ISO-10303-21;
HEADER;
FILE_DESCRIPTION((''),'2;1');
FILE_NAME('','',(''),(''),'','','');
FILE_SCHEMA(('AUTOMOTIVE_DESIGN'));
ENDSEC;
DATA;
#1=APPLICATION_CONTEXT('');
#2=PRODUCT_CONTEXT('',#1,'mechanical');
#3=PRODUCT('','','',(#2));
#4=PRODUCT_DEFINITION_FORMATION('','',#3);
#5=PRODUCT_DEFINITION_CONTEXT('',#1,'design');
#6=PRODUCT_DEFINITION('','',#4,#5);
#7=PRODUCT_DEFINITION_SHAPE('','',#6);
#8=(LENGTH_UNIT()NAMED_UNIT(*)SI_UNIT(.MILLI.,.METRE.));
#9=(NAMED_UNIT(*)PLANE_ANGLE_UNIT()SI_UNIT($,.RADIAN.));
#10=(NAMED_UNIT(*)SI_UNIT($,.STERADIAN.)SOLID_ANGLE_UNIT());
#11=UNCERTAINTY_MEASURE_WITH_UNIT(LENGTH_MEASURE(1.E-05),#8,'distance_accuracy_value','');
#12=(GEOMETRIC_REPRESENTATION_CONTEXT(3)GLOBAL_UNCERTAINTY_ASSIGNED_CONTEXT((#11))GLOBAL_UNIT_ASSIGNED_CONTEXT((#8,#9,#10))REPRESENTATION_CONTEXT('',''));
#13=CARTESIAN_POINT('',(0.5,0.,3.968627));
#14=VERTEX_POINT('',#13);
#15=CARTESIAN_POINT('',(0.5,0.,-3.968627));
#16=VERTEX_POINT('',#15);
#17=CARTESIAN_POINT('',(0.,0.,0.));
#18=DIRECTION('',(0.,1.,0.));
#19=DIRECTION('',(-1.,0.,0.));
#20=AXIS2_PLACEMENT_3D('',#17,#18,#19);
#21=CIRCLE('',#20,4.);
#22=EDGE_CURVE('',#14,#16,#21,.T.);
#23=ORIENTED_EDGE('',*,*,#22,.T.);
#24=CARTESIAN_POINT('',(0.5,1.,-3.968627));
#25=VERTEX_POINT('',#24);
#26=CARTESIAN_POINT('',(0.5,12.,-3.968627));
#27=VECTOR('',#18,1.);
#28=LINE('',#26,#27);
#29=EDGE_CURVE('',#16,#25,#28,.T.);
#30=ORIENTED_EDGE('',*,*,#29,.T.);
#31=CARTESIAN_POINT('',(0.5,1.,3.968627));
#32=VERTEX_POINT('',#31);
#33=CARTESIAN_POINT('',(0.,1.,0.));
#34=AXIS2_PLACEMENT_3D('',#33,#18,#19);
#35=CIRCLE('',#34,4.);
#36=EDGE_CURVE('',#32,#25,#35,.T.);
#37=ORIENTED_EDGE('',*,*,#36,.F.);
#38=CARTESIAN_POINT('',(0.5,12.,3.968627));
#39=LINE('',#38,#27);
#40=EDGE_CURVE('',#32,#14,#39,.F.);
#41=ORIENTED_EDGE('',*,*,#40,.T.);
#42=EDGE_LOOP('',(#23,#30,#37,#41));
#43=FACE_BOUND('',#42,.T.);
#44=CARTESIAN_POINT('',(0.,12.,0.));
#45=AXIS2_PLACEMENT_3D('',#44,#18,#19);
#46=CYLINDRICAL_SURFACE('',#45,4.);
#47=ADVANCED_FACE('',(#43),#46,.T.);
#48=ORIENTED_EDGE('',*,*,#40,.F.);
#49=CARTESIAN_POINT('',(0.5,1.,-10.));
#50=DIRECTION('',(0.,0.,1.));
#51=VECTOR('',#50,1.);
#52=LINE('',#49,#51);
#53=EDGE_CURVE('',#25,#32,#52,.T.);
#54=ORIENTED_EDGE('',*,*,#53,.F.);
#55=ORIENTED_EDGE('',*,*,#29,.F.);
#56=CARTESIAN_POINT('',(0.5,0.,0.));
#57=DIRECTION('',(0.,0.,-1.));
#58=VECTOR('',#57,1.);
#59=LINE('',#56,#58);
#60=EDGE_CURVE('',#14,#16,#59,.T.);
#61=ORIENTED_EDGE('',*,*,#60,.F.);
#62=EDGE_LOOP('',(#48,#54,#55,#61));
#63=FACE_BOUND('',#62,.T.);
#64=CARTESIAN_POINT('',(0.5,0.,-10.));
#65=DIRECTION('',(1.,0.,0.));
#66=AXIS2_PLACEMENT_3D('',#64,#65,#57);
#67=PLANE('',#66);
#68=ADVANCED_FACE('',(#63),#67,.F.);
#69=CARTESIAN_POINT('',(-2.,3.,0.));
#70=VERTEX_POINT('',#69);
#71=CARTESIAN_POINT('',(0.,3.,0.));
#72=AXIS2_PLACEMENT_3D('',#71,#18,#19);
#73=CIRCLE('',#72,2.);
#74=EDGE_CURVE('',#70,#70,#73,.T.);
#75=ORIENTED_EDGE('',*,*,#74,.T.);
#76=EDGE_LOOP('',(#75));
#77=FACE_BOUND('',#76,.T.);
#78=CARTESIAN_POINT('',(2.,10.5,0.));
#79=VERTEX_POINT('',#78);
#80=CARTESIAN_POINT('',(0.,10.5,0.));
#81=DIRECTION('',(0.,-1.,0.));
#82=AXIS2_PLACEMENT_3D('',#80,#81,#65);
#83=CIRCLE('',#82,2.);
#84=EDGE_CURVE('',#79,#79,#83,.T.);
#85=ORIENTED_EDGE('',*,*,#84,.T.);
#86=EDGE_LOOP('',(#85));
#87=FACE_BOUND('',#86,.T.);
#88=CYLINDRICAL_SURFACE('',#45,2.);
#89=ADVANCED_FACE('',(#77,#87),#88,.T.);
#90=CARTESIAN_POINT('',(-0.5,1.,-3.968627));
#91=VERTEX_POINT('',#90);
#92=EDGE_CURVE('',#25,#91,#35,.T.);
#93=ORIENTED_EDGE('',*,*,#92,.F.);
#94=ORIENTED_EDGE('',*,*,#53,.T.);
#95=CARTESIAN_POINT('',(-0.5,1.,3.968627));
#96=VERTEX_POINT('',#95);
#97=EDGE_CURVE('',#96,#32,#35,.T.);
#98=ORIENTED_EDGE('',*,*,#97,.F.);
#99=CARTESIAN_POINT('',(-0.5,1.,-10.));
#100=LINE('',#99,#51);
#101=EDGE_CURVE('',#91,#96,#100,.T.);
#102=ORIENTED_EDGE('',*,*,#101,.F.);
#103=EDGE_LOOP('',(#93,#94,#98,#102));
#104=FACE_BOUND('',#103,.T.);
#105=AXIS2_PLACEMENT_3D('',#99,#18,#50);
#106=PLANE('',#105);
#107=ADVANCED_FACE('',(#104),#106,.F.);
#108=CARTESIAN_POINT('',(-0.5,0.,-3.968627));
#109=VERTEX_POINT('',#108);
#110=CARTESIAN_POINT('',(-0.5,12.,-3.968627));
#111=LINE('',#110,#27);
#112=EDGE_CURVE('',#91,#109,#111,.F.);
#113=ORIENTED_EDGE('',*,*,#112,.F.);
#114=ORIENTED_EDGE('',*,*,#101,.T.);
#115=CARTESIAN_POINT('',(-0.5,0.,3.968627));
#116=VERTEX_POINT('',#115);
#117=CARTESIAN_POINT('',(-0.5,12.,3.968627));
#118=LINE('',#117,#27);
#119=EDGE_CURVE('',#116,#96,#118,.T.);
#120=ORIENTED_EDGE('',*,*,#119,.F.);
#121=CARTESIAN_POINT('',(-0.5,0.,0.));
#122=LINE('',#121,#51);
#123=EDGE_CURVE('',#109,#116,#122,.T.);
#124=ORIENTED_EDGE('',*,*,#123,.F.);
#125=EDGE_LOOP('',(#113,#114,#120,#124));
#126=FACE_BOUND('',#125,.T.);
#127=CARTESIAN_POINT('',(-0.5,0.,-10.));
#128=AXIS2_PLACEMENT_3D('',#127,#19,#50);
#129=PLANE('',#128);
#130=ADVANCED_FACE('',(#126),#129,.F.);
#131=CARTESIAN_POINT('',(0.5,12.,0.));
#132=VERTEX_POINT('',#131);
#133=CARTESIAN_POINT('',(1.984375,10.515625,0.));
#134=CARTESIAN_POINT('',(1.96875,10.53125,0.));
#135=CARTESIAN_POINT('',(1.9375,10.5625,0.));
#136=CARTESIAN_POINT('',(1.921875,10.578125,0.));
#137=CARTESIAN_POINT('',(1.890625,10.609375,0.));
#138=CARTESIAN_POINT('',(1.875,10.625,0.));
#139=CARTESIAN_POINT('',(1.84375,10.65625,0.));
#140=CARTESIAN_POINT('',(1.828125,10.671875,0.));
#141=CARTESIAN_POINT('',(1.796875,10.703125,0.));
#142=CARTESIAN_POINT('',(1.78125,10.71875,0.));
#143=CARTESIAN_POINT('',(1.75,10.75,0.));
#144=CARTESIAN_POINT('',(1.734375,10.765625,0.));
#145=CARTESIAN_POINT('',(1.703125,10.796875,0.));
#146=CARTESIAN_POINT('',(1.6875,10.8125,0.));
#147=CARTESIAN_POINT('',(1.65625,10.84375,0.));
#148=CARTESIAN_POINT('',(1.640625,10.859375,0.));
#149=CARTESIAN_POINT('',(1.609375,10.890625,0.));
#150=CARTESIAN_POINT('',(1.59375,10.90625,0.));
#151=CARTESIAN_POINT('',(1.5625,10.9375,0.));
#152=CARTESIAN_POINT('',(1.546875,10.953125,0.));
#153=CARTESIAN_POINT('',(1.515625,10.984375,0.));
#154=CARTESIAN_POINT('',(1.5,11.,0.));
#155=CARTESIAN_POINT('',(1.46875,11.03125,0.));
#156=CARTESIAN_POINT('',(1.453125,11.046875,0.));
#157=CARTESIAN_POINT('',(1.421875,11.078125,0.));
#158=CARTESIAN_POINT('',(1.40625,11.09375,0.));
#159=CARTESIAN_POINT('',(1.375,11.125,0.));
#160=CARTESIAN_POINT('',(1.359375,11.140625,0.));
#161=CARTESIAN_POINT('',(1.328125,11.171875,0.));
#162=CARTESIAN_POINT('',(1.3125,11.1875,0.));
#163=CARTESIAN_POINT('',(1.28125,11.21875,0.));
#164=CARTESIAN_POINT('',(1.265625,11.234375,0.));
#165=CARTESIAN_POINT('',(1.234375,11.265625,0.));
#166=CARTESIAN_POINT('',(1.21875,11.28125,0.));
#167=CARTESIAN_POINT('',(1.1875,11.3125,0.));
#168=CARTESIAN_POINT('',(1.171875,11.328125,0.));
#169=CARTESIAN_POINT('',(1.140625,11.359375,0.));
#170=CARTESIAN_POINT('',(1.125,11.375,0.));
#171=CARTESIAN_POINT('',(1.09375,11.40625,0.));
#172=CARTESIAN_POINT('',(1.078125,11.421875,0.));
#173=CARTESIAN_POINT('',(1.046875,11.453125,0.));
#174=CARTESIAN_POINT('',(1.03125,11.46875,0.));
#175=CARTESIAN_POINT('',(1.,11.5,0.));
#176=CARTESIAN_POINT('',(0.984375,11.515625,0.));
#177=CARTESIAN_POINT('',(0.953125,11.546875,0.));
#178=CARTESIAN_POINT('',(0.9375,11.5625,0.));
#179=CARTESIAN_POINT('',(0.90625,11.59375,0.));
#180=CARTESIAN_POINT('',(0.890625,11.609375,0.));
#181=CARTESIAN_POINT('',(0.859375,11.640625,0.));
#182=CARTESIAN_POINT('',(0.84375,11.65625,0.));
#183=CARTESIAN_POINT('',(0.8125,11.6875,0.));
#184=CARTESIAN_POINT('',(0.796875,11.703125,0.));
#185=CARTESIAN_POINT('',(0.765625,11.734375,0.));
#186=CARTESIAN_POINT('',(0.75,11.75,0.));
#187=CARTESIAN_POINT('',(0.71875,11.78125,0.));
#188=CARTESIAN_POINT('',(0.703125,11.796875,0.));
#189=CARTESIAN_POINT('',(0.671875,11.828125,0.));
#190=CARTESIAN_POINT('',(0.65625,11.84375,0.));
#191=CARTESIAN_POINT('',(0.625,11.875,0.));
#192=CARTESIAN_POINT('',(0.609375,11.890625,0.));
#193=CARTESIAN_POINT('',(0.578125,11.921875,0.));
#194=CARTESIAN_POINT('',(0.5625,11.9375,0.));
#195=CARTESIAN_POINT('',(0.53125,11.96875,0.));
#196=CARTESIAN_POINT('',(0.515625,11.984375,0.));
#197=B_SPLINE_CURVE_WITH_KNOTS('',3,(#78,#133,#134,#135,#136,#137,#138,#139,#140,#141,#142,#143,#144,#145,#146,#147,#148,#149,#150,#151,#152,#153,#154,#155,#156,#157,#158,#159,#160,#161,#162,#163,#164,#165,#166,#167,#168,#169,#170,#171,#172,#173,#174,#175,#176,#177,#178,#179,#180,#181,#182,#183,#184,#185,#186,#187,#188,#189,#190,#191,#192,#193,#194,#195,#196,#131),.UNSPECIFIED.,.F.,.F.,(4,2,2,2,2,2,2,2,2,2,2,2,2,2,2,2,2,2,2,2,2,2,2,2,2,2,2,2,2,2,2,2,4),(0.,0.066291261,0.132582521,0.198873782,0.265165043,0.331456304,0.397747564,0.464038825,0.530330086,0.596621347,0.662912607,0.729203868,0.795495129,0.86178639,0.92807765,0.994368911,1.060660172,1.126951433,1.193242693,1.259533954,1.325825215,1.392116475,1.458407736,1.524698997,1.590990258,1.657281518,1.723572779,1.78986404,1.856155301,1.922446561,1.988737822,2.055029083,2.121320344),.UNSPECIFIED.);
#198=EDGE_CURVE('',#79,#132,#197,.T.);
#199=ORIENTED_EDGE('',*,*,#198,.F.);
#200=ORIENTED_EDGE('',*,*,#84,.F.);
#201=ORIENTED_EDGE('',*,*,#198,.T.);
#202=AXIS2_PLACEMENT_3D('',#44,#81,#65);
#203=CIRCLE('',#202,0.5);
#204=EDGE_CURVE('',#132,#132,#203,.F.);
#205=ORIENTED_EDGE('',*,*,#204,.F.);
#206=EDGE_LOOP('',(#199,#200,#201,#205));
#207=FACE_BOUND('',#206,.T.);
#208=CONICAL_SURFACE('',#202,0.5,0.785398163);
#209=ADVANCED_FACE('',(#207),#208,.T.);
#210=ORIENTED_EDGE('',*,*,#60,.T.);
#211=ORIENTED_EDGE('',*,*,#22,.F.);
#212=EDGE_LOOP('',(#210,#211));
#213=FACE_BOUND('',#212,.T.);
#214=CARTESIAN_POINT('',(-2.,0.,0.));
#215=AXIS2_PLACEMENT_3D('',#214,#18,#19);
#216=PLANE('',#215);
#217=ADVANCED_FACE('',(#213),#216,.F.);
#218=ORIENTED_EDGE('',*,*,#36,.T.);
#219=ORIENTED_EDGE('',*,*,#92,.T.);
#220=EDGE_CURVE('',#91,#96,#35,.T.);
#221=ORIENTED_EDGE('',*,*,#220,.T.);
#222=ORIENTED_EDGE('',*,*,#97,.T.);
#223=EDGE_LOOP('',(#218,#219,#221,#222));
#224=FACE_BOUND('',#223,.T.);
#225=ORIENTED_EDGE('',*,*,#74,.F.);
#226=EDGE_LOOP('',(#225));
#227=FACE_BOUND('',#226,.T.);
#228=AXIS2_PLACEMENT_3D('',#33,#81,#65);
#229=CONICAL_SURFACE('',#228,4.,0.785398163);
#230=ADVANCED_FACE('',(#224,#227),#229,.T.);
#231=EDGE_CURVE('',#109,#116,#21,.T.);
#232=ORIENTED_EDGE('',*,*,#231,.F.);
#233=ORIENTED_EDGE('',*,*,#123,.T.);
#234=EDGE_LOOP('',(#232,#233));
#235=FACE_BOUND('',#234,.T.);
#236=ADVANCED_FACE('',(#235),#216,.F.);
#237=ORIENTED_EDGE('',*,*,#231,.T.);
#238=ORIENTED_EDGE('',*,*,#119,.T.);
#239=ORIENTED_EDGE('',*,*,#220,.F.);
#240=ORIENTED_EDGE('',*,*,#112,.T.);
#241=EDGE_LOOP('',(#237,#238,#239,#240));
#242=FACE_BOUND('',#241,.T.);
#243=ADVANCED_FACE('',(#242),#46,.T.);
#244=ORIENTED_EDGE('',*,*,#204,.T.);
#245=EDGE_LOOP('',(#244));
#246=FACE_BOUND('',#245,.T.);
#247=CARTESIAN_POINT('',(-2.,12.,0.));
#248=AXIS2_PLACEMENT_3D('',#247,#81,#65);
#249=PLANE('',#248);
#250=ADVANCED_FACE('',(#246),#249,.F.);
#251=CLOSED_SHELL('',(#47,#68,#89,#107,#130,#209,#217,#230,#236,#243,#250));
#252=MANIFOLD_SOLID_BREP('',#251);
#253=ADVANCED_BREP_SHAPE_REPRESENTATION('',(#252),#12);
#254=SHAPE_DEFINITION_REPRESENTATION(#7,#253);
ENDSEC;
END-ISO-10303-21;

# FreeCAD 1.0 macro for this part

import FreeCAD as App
import Part
import Sketcher
from FreeCAD import Vector
Q = App.Units.Quantity


def edges_at(feature, points):
    """Names of the edges that pass closest to the given points."""
    edges = feature.Shape.Edges
    near = lambda p: min(range(len(edges)), key=lambda i: edges[i].distToShape(Part.Vertex(*p))[0])
    return sorted({f"Edge{near(p) + 1}" for p in points})

doc = App.newDocument("Part")
body = doc.addObject("PartDesign::Body", "Body")

sketch1 = body.newObject("Sketcher::SketchObject", "Sketch")
sketch1.AttachmentSupport = (doc.getObject("XY_Plane"), [""])
sketch1.MapMode = "FlatFace"
sketch1.addGeometry([
    Part.LineSegment(Vector(-2, 12, 0), Vector(-2, 3, 0)),
    Part.LineSegment(Vector(-2, 3, 0), Vector(-4, 1, 0)),
    Part.LineSegment(Vector(-4, 1, 0), Vector(-4, 0, 0)),
    Part.LineSegment(Vector(-4, 0, 0), Vector(0, 0, 0)),
    Part.LineSegment(Vector(0, 0, 0), Vector(0, 12, 0)),
    Part.LineSegment(Vector(0, 12, 0), Vector(-2, 12, 0)),
], False)
sketch1.addConstraint([
    Sketcher.Constraint("Coincident", 0, 2, 1, 1),
    Sketcher.Constraint("Coincident", 1, 2, 2, 1),
    Sketcher.Constraint("Coincident", 2, 2, 3, 1),
    Sketcher.Constraint("Coincident", 3, 2, 4, 1),
    Sketcher.Constraint("Coincident", 4, 2, 5, 1),
    Sketcher.Constraint("Coincident", 5, 2, 0, 1),
    Sketcher.Constraint("Vertical", 0),
    Sketcher.Constraint("Vertical", 2),
    Sketcher.Constraint("Horizontal", 3),
    Sketcher.Constraint("Vertical", 4),
    Sketcher.Constraint("Horizontal", 5),
    Sketcher.Constraint("Coincident", 3, 2, -1, 1),
    Sketcher.Constraint("DistanceX", 3, 1, 3, 2, Q("4 mm")),
    Sketcher.Constraint("DistanceX", 5, 2, 5, 1, Q("2 mm")),
    Sketcher.Constraint("DistanceY", 0, 2, 0, 1, Q("9 mm")),
    Sketcher.Constraint("DistanceY", 2, 2, 2, 1, Q("1 mm")),
    Sketcher.Constraint("DistanceY", 4, 1, 4, 2, Q("12 mm")),
])
revolution = body.newObject("PartDesign::Revolution", "Revolution")
revolution.Profile = sketch1
revolution.ReferenceAxis = (sketch1, ["V_Axis"])
revolution.Angle = 360

sketch2 = body.newObject("Sketcher::SketchObject", "Sketch001")
sketch2.AttachmentSupport = (doc.getObject("XY_Plane"), [""])
sketch2.MapMode = "FlatFace"
sketch2.addGeometry([
    Part.LineSegment(Vector(-0.5, 1, 0), Vector(-0.5, 0, 0)),
    Part.LineSegment(Vector(-0.5, 0, 0), Vector(0.5, 0, 0)),
    Part.LineSegment(Vector(0.5, 0, 0), Vector(0.5, 1, 0)),
    Part.LineSegment(Vector(0.5, 1, 0), Vector(-0.5, 1, 0)),
], False)
sketch2.addConstraint([
    Sketcher.Constraint("Coincident", 0, 2, 1, 1),
    Sketcher.Constraint("Coincident", 1, 2, 2, 1),
    Sketcher.Constraint("Coincident", 2, 2, 3, 1),
    Sketcher.Constraint("Coincident", 3, 2, 0, 1),
    Sketcher.Constraint("Vertical", 0),
    Sketcher.Constraint("Horizontal", 1),
    Sketcher.Constraint("Vertical", 2),
    Sketcher.Constraint("Horizontal", 3),
    Sketcher.Constraint("Symmetric", 0, 2, 1, 2, -1, 1),
    Sketcher.Constraint("Equal", 3, 0),
    Sketcher.Constraint("DistanceX", 1, 1, 1, 2, Q("1 mm")),
])
pocket1 = body.newObject("PartDesign::Pocket", "Pocket")
pocket1.Profile = sketch2
pocket1.Length = 20
pocket1.Midplane = True
doc.recompute()

chamfer = body.newObject("PartDesign::Chamfer", "Chamfer")
chamfer.Base = (pocket1, edges_at(pocket1, [(2, 12, 0)]))
chamfer.Size = 1.5

doc.recompute()
